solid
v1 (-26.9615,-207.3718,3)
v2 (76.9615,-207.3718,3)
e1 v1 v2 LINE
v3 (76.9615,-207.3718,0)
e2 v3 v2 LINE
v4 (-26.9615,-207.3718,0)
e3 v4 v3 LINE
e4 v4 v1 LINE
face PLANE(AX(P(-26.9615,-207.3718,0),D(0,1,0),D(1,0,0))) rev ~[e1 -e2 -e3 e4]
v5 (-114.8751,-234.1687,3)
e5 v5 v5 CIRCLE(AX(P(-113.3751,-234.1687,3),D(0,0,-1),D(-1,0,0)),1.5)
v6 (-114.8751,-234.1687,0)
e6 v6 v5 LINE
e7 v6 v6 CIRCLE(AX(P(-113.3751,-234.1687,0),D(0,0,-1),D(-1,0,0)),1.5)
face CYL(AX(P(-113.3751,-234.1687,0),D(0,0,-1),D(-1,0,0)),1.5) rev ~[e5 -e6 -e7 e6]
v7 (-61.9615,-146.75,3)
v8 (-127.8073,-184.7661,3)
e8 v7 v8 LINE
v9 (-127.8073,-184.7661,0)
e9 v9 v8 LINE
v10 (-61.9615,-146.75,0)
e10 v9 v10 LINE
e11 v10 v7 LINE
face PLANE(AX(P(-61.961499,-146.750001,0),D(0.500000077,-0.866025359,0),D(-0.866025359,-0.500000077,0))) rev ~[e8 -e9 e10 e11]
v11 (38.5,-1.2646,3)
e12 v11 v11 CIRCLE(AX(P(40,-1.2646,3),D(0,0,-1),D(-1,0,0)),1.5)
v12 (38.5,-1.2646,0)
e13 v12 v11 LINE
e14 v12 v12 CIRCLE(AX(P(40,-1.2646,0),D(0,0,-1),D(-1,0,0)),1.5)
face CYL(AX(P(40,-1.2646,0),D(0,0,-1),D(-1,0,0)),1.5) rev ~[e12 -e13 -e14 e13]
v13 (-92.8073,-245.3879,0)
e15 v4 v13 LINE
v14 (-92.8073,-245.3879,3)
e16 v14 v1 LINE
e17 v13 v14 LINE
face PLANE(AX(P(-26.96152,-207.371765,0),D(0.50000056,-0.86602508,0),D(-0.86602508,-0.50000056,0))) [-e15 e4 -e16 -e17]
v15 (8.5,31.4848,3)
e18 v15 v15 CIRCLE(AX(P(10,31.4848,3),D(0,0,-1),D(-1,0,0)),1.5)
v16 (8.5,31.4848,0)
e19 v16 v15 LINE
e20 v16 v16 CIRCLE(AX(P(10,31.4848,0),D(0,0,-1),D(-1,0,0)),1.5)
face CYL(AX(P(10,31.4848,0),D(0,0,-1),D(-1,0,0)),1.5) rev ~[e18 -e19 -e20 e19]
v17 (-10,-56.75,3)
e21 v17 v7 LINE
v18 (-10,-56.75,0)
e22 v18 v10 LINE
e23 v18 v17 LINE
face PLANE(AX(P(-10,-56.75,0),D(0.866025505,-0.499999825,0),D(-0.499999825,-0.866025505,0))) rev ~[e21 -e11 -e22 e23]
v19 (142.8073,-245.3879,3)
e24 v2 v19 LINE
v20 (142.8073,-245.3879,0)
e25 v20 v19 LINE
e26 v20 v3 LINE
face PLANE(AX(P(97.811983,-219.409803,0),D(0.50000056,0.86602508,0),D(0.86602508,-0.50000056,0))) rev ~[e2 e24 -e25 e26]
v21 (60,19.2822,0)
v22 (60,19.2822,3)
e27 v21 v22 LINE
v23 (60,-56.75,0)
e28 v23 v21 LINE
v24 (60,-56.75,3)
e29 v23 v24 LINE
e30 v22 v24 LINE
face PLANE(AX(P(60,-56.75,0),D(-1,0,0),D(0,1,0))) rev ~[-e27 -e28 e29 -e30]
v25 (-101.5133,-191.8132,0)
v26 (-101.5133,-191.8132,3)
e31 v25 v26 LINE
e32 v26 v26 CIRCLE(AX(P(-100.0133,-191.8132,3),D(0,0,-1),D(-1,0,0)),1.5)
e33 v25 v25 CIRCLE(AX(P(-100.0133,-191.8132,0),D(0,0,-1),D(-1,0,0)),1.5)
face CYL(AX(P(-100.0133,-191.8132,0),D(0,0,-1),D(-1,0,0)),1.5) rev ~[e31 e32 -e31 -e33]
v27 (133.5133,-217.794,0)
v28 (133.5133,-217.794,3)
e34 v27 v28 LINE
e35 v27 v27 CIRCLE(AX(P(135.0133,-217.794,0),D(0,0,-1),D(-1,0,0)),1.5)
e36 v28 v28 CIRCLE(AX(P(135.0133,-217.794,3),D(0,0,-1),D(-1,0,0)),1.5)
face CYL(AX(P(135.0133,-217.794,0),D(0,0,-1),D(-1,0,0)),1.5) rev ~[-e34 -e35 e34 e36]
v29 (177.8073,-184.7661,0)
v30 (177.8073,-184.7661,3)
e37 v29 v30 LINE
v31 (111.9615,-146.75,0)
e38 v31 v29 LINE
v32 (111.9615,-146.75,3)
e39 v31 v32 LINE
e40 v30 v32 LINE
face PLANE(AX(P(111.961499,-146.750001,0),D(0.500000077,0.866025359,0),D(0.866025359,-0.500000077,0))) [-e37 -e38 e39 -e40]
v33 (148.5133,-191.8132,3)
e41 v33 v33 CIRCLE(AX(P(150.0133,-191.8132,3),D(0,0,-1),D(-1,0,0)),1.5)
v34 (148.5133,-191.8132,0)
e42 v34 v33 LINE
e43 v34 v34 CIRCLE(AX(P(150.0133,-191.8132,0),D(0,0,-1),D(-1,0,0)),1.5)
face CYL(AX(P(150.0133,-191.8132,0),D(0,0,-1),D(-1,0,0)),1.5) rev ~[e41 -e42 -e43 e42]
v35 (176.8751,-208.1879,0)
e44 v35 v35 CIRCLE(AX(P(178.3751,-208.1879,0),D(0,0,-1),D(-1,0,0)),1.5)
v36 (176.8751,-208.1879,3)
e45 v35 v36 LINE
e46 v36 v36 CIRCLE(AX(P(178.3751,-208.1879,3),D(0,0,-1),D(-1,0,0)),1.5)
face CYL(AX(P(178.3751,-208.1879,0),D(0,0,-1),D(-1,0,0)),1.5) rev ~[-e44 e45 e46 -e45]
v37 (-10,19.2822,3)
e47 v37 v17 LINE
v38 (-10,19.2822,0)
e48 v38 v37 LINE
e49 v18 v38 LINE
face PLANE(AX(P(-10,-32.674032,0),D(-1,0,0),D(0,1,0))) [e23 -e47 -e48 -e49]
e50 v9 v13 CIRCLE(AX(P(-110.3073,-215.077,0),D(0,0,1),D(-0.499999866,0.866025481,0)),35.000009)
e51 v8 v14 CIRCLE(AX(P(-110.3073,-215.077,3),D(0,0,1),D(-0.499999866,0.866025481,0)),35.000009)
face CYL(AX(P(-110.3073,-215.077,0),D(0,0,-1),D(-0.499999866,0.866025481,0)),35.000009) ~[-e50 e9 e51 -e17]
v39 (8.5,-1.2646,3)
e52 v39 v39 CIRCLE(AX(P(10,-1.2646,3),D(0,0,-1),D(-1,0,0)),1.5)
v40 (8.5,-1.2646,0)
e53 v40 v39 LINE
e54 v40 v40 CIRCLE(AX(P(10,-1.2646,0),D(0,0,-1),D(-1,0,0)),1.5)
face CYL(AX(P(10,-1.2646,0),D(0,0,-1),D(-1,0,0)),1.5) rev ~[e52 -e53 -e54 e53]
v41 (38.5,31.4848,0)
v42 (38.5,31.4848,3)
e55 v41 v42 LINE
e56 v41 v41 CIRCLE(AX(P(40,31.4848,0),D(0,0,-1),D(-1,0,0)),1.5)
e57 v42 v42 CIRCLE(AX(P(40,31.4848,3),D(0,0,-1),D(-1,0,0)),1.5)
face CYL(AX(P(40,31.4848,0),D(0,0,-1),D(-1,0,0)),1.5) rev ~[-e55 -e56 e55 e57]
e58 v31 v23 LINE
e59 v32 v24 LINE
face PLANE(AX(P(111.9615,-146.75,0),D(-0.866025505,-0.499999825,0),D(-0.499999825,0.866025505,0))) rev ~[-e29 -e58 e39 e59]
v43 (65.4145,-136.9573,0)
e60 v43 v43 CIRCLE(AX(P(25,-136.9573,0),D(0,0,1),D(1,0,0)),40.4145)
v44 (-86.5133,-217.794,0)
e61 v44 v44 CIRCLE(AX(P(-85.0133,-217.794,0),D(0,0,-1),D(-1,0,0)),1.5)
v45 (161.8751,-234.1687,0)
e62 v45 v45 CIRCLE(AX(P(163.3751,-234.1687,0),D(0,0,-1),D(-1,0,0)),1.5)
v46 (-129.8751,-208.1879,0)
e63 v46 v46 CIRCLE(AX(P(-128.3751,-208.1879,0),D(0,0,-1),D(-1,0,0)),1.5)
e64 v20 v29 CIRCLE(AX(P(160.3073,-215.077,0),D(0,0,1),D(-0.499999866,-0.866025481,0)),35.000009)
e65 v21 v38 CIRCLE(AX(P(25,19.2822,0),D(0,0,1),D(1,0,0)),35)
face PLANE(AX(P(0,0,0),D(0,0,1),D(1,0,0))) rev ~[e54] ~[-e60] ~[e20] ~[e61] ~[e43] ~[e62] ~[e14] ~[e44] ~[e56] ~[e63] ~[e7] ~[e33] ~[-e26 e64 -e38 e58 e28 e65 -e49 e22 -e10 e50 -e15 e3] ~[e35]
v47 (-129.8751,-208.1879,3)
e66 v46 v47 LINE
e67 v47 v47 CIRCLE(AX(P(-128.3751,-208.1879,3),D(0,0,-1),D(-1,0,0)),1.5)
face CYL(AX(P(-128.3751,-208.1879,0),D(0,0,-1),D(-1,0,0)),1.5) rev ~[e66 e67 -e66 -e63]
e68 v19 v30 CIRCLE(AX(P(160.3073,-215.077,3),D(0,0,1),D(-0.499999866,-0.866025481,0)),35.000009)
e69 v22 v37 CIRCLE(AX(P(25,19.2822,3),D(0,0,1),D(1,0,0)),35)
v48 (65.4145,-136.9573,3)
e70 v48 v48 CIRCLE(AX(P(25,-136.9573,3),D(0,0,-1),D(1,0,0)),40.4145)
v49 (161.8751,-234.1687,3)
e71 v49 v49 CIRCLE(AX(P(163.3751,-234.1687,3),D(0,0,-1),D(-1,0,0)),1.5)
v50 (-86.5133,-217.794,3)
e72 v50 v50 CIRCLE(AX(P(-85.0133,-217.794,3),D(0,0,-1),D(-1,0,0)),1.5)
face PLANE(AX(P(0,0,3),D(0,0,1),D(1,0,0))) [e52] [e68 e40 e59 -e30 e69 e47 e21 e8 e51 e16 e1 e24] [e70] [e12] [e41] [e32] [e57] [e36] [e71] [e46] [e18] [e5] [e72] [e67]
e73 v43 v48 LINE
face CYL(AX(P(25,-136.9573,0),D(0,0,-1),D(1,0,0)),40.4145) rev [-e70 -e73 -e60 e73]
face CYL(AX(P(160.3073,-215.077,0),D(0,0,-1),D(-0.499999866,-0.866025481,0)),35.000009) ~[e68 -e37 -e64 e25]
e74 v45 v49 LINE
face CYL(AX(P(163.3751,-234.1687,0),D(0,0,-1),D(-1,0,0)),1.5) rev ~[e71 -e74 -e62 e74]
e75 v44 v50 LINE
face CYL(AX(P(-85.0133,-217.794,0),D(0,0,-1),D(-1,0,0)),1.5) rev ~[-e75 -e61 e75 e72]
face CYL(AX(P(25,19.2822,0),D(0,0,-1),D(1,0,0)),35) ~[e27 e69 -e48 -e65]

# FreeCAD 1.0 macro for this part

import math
import FreeCAD as App
import Part
import Sketcher
from FreeCAD import Vector
Q = App.Units.Quantity

doc = App.newDocument("Part")
params = doc.addObject("Spreadsheet::Sheet", "Params")
for row, (alias, value) in enumerate([
    ("sketch1_radius", "35 mm"),
    ("pad1_length", "3 mm"),
    ("sketch2_diameter", "3 mm"),
    ("pocket1_length", "6 mm"),
], start=1):
    params.set(f"A{row}", alias)
    params.set(f"B{row}", "=" + value)
    params.setAlias(f"B{row}", alias)

body = doc.addObject("PartDesign::Body", "Body")

sketch1 = body.newObject("Sketcher::SketchObject", "Sketch")
sketch1.AttachmentSupport = (doc.getObject("XY_Plane"), [""])
sketch1.MapMode = "FlatFace"
sketch1.addGeometry([
    Part.LineSegment(Vector(60, -57, 0), Vector(60, 19, 0)),
    Part.ArcOfCircle(Part.Circle(Vector(25, 19, 0), Vector(0, 0, 1), 35), math.radians(0), math.radians(180)),
    Part.LineSegment(Vector(-10, 19, 0), Vector(-10, -57, 0)),
    Part.LineSegment(Vector(-10, -57, 0), Vector(-62, -147, 0)),
    Part.LineSegment(Vector(-62, -147, 0), Vector(-128, -185, 0)),
    Part.ArcOfCircle(Part.Circle(Vector(-110, -215, 0), Vector(0, 0, 1), 35), math.radians(120), math.radians(300)),
    Part.LineSegment(Vector(-93, -245, 0), Vector(-27, -207, 0)),
    Part.LineSegment(Vector(-27, -207, 0), Vector(77, -207, 0)),
    Part.LineSegment(Vector(77, -207, 0), Vector(143, -245, 0)),
    Part.ArcOfCircle(Part.Circle(Vector(160, -215, 0), Vector(0, 0, 1), 35), math.radians(-120), math.radians(60)),
    Part.LineSegment(Vector(178, -185, 0), Vector(112, -147, 0)),
    Part.LineSegment(Vector(112, -147, 0), Vector(60, -57, 0)),
    Part.Circle(Vector(25, -137, 0), Vector(0, 0, 1), 40),
], False)
sketch1.addConstraint([
    Sketcher.Constraint("Tangent", 0, 2, 1, 1),
    Sketcher.Constraint("Tangent", 1, 2, 2, 1),
    Sketcher.Constraint("Coincident", 2, 2, 3, 1),
    Sketcher.Constraint("Coincident", 3, 2, 4, 1),
    Sketcher.Constraint("Tangent", 4, 2, 5, 1),
    Sketcher.Constraint("Tangent", 5, 2, 6, 1),
    Sketcher.Constraint("Coincident", 6, 2, 7, 1),
    Sketcher.Constraint("Coincident", 7, 2, 8, 1),
    Sketcher.Constraint("Tangent", 8, 2, 9, 1),
    Sketcher.Constraint("Tangent", 9, 2, 10, 1),
    Sketcher.Constraint("Coincident", 10, 2, 11, 1),
    Sketcher.Constraint("Coincident", 11, 2, 0, 1),
    Sketcher.Constraint("Vertical", 0),
    Sketcher.Constraint("Vertical", 2),
    Sketcher.Constraint("Horizontal", 7),
    Sketcher.Constraint("Equal", 1, 5),
    Sketcher.Constraint("Equal", 5, 9),
    Sketcher.Constraint("Parallel", 4, 6),
    Sketcher.Constraint("Perpendicular", 3, 8),
    Sketcher.Constraint("Parallel", 8, 10),
    Sketcher.Constraint("Perpendicular", 6, 11),
    Sketcher.Constraint("Horizontal", 5, 3, 9, 3),
    Sketcher.Constraint("Horizontal", 5, 2, 8, 2),
    Sketcher.Constraint("Horizontal", 3, 2, 10, 2),
    Sketcher.Constraint("Horizontal", 2, 2, 11, 2),
    Sketcher.Constraint("Vertical", 1, 3, 12, 3),
    Sketcher.Constraint("Equal", 4, 6),
    Sketcher.Constraint("Radius", 1, Q("35 mm")),
    Sketcher.Constraint("Angle", 3, Q("-120 deg")),
    Sketcher.Constraint("Diameter", 12, Q("80.829 mm")),
    Sketcher.Constraint("DistanceX", -1, 1, 1, 3, Q("25 mm")),
    Sketcher.Constraint("DistanceY", 3, 2, 2, 2, Q("90 mm")),
    Sketcher.Constraint("DistanceY", 2, 2, -1, 1, Q("56.75 mm")),
    Sketcher.Constraint("DistanceY", 0, 1, 0, 2, Q("76.0322 mm")),
    Sketcher.Constraint("DistanceY", 5, 3, -1, 1, Q("215.077 mm")),
    Sketcher.Constraint("DistanceY", 12, 3, -1, 1, Q("136.9573 mm")),
])
sketch1.setExpression("Constraints[27]", "Params.sketch1_radius")
pad1 = body.newObject("PartDesign::Pad", "Pad")
pad1.Profile = sketch1
pad1.setExpression("Length", "Params.pad1_length")

sketch2 = body.newObject("Sketcher::SketchObject", "Sketch001")
sketch2.AttachmentSupport = (doc.getObject("XY_Plane"), [""])
sketch2.MapMode = "FlatFace"
sketch2.addGeometry([
    Part.Circle(Vector(40, -1.3, 0), Vector(0, 0, 1), 1.5),
    Part.Circle(Vector(10, -1.3, 0), Vector(0, 0, 1), 1.5),
    Part.Circle(Vector(10, 31.5, 0), Vector(0, 0, 1), 1.5),
    Part.Circle(Vector(40, 31.5, 0), Vector(0, 0, 1), 1.5),
    Part.Circle(Vector(-113.4, -234.2, 0), Vector(0, 0, 1), 1.5),
    Part.Circle(Vector(-85, -217.8, 0), Vector(0, 0, 1), 1.5),
    Part.Circle(Vector(-100, -191.8, 0), Vector(0, 0, 1), 1.5),
    Part.Circle(Vector(-128.4, -208.2, 0), Vector(0, 0, 1), 1.5),
    Part.Circle(Vector(135, -217.8, 0), Vector(0, 0, 1), 1.5),
    Part.Circle(Vector(163.4, -234.2, 0), Vector(0, 0, 1), 1.5),
    Part.Circle(Vector(178.4, -208.2, 0), Vector(0, 0, 1), 1.5),
    Part.Circle(Vector(150, -191.8, 0), Vector(0, 0, 1), 1.5),
], False)
sketch2.addConstraint([
    Sketcher.Constraint("Equal", 0, 1),
    Sketcher.Constraint("Equal", 1, 2),
    Sketcher.Constraint("Equal", 2, 3),
    Sketcher.Constraint("Equal", 3, 4),
    Sketcher.Constraint("Equal", 4, 5),
    Sketcher.Constraint("Equal", 5, 6),
    Sketcher.Constraint("Equal", 6, 7),
    Sketcher.Constraint("Equal", 7, 8),
    Sketcher.Constraint("Equal", 8, 9),
    Sketcher.Constraint("Equal", 9, 10),
    Sketcher.Constraint("Equal", 10, 11),
    Sketcher.Constraint("Horizontal", 0, 3, 1, 3),
    Sketcher.Constraint("Horizontal", 2, 3, 3, 3),
    Sketcher.Constraint("Horizontal", 5, 3, 8, 3),
    Sketcher.Constraint("Horizontal", 4, 3, 9, 3),
    Sketcher.Constraint("Horizontal", 7, 3, 10, 3),
    Sketcher.Constraint("Horizontal", 6, 3, 11, 3),
    Sketcher.Constraint("Vertical", 1, 3, 2, 3),
    Sketcher.Constraint("Vertical", 0, 3, 3, 3),
    Sketcher.Constraint("Diameter", 0, Q("3 mm")),
    Sketcher.Constraint("DistanceX", -1, 1, 0, 3, Q("40 mm")),
    Sketcher.Constraint("DistanceX", -1, 1, 1, 3, Q("10 mm")),
    Sketcher.Constraint("DistanceX", 6, 3, 5, 3, Q("15 mm")),
    Sketcher.Constraint("DistanceX", 7, 3, 4, 3, Q("15 mm")),
    Sketcher.Constraint("DistanceX", 9, 3, 10, 3, Q("15 mm")),
    Sketcher.Constraint("DistanceX", 8, 3, 11, 3, Q("15 mm")),
    Sketcher.Constraint("DistanceX", 4, 3, -1, 1, Q("113.375 mm")),
    Sketcher.Constraint("DistanceY", 5, 3, -1, 1, Q("217.794 mm")),
    Sketcher.Constraint("DistanceY", 7, 3, -1, 1, Q("208.188 mm")),
    Sketcher.Constraint("DistanceX", -1, 1, 9, 3, Q("163.375 mm")),
    Sketcher.Constraint("DistanceY", 4, 3, 1, 3, Q("232.904 mm")),
    Sketcher.Constraint("DistanceY", 6, 3, 2, 3, Q("223.298 mm")),
    Sketcher.Constraint("DistanceY", 0, 3, -1, 1, Q("1.2646 mm")),
    Sketcher.Constraint("DistanceY", -1, 1, 2, 3, Q("31.4848 mm")),
    Sketcher.Constraint("DistanceX", 5, 3, -1, 1, Q("85.0133 mm")),
    Sketcher.Constraint("DistanceX", -1, 1, 8, 3, Q("135.0133 mm")),
])
sketch2.setExpression("Constraints[19]", "Params.sketch2_diameter")
pocket1 = body.newObject("PartDesign::Pocket", "Pocket")
pocket1.Profile = sketch2
pocket1.setExpression("Length", "Params.pocket1_length")
pocket1.Reversed = True

doc.recompute()
